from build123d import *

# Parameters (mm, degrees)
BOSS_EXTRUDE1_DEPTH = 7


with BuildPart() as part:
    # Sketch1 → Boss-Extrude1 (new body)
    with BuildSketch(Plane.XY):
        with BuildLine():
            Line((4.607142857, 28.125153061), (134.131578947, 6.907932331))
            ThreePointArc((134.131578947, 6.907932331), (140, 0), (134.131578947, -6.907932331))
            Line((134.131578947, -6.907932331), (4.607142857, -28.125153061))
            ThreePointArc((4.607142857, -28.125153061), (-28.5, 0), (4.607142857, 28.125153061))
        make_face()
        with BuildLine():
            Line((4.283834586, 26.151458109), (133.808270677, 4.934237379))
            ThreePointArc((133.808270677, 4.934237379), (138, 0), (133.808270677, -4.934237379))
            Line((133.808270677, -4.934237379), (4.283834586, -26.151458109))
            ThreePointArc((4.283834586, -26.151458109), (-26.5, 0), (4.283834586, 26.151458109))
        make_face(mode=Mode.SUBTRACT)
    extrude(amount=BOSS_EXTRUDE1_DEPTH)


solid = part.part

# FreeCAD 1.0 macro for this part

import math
import FreeCAD as App
import Part
import Sketcher

V = App.Vector
Q = App.Units.Quantity

doc = App.newDocument("Part")
body = doc.addObject("PartDesign::Body", "Body")

sketch1 = body.newObject("Sketcher::SketchObject", "Sketch")
sketch1.AttachmentSupport = (doc.getObject("XY_Plane"), [""])
sketch1.MapMode = "FlatFace"
sketch1.addGeometry(Part.LineSegment(V(134.131579, 6.907932, 0), V(4.607143, 28.125153, 0)), False)
sketch1.addGeometry(Part.ArcOfCircle(Part.Circle(V(0, 0, 0), V(0, 0, 1), 28.5), math.radians(80.697079), math.radians(279.302921)), False)
sketch1.addGeometry(Part.LineSegment(V(4.607143, -28.125153, 0), V(134.131579, -6.907932, 0)), False)
sketch1.addGeometry(Part.ArcOfCircle(Part.Circle(V(133, 0, 0), V(0, 0, 1), 7), math.radians(-80.697079), math.radians(80.697079)), False)
sketch1.addGeometry(Part.LineSegment(V(4.283835, 26.151458, 0), V(133.808271, 4.934237, 0)), False)
sketch1.addGeometry(Part.ArcOfCircle(Part.Circle(V(133, 0, 0), V(0, 0, 1), 5), math.radians(-80.697079), math.radians(80.697079)), False)
sketch1.addGeometry(Part.LineSegment(V(133.808271, -4.934237, 0), V(4.283835, -26.151458, 0)), False)
sketch1.addGeometry(Part.ArcOfCircle(Part.Circle(V(0, 0, 0), V(0, 0, 1), 26.5), math.radians(80.697079), math.radians(279.302921)), False)
sketch1.addConstraint(Sketcher.Constraint("Tangent", 0, 2, 1, 1))
sketch1.addConstraint(Sketcher.Constraint("Tangent", 1, 2, 2, 1))
sketch1.addConstraint(Sketcher.Constraint("Tangent", 2, 2, 3, 1))
sketch1.addConstraint(Sketcher.Constraint("Tangent", 3, 2, 0, 1))
sketch1.addConstraint(Sketcher.Constraint("Tangent", 4, 2, 5, 2))
sketch1.addConstraint(Sketcher.Constraint("Tangent", 5, 1, 6, 1))
sketch1.addConstraint(Sketcher.Constraint("Tangent", 6, 2, 7, 2))
sketch1.addConstraint(Sketcher.Constraint("Tangent", 7, 1, 4, 1))
sketch1.addConstraint(Sketcher.Constraint("Coincident", 1, 3, -1, 1))
sketch1.addConstraint(Sketcher.Constraint("Coincident", 7, 3, -1, 1))
sketch1.addConstraint(Sketcher.Constraint("Coincident", 5, 3, 3, 3))
sketch1.addConstraint(Sketcher.Constraint("PointOnObject", 3, 3, -1))
sketch1.addConstraint(Sketcher.Constraint("Parallel", 0, 4))
sketch1.addConstraint(Sketcher.Constraint("Radius", 3, Q("7 mm")))
sketch1.addConstraint(Sketcher.Constraint("Radius", 5, Q("5 mm")))
sketch1.addConstraint(Sketcher.Constraint("Radius", 1, Q("28.5 mm")))
sketch1.addConstraint(Sketcher.Constraint("DistanceX", -1, 1, 3, 3, Q("133 mm")))
pad1 = body.newObject("PartDesign::Pad", "Pad")
pad1.Profile = sketch1
pad1.Length = 7

doc.recompute()
